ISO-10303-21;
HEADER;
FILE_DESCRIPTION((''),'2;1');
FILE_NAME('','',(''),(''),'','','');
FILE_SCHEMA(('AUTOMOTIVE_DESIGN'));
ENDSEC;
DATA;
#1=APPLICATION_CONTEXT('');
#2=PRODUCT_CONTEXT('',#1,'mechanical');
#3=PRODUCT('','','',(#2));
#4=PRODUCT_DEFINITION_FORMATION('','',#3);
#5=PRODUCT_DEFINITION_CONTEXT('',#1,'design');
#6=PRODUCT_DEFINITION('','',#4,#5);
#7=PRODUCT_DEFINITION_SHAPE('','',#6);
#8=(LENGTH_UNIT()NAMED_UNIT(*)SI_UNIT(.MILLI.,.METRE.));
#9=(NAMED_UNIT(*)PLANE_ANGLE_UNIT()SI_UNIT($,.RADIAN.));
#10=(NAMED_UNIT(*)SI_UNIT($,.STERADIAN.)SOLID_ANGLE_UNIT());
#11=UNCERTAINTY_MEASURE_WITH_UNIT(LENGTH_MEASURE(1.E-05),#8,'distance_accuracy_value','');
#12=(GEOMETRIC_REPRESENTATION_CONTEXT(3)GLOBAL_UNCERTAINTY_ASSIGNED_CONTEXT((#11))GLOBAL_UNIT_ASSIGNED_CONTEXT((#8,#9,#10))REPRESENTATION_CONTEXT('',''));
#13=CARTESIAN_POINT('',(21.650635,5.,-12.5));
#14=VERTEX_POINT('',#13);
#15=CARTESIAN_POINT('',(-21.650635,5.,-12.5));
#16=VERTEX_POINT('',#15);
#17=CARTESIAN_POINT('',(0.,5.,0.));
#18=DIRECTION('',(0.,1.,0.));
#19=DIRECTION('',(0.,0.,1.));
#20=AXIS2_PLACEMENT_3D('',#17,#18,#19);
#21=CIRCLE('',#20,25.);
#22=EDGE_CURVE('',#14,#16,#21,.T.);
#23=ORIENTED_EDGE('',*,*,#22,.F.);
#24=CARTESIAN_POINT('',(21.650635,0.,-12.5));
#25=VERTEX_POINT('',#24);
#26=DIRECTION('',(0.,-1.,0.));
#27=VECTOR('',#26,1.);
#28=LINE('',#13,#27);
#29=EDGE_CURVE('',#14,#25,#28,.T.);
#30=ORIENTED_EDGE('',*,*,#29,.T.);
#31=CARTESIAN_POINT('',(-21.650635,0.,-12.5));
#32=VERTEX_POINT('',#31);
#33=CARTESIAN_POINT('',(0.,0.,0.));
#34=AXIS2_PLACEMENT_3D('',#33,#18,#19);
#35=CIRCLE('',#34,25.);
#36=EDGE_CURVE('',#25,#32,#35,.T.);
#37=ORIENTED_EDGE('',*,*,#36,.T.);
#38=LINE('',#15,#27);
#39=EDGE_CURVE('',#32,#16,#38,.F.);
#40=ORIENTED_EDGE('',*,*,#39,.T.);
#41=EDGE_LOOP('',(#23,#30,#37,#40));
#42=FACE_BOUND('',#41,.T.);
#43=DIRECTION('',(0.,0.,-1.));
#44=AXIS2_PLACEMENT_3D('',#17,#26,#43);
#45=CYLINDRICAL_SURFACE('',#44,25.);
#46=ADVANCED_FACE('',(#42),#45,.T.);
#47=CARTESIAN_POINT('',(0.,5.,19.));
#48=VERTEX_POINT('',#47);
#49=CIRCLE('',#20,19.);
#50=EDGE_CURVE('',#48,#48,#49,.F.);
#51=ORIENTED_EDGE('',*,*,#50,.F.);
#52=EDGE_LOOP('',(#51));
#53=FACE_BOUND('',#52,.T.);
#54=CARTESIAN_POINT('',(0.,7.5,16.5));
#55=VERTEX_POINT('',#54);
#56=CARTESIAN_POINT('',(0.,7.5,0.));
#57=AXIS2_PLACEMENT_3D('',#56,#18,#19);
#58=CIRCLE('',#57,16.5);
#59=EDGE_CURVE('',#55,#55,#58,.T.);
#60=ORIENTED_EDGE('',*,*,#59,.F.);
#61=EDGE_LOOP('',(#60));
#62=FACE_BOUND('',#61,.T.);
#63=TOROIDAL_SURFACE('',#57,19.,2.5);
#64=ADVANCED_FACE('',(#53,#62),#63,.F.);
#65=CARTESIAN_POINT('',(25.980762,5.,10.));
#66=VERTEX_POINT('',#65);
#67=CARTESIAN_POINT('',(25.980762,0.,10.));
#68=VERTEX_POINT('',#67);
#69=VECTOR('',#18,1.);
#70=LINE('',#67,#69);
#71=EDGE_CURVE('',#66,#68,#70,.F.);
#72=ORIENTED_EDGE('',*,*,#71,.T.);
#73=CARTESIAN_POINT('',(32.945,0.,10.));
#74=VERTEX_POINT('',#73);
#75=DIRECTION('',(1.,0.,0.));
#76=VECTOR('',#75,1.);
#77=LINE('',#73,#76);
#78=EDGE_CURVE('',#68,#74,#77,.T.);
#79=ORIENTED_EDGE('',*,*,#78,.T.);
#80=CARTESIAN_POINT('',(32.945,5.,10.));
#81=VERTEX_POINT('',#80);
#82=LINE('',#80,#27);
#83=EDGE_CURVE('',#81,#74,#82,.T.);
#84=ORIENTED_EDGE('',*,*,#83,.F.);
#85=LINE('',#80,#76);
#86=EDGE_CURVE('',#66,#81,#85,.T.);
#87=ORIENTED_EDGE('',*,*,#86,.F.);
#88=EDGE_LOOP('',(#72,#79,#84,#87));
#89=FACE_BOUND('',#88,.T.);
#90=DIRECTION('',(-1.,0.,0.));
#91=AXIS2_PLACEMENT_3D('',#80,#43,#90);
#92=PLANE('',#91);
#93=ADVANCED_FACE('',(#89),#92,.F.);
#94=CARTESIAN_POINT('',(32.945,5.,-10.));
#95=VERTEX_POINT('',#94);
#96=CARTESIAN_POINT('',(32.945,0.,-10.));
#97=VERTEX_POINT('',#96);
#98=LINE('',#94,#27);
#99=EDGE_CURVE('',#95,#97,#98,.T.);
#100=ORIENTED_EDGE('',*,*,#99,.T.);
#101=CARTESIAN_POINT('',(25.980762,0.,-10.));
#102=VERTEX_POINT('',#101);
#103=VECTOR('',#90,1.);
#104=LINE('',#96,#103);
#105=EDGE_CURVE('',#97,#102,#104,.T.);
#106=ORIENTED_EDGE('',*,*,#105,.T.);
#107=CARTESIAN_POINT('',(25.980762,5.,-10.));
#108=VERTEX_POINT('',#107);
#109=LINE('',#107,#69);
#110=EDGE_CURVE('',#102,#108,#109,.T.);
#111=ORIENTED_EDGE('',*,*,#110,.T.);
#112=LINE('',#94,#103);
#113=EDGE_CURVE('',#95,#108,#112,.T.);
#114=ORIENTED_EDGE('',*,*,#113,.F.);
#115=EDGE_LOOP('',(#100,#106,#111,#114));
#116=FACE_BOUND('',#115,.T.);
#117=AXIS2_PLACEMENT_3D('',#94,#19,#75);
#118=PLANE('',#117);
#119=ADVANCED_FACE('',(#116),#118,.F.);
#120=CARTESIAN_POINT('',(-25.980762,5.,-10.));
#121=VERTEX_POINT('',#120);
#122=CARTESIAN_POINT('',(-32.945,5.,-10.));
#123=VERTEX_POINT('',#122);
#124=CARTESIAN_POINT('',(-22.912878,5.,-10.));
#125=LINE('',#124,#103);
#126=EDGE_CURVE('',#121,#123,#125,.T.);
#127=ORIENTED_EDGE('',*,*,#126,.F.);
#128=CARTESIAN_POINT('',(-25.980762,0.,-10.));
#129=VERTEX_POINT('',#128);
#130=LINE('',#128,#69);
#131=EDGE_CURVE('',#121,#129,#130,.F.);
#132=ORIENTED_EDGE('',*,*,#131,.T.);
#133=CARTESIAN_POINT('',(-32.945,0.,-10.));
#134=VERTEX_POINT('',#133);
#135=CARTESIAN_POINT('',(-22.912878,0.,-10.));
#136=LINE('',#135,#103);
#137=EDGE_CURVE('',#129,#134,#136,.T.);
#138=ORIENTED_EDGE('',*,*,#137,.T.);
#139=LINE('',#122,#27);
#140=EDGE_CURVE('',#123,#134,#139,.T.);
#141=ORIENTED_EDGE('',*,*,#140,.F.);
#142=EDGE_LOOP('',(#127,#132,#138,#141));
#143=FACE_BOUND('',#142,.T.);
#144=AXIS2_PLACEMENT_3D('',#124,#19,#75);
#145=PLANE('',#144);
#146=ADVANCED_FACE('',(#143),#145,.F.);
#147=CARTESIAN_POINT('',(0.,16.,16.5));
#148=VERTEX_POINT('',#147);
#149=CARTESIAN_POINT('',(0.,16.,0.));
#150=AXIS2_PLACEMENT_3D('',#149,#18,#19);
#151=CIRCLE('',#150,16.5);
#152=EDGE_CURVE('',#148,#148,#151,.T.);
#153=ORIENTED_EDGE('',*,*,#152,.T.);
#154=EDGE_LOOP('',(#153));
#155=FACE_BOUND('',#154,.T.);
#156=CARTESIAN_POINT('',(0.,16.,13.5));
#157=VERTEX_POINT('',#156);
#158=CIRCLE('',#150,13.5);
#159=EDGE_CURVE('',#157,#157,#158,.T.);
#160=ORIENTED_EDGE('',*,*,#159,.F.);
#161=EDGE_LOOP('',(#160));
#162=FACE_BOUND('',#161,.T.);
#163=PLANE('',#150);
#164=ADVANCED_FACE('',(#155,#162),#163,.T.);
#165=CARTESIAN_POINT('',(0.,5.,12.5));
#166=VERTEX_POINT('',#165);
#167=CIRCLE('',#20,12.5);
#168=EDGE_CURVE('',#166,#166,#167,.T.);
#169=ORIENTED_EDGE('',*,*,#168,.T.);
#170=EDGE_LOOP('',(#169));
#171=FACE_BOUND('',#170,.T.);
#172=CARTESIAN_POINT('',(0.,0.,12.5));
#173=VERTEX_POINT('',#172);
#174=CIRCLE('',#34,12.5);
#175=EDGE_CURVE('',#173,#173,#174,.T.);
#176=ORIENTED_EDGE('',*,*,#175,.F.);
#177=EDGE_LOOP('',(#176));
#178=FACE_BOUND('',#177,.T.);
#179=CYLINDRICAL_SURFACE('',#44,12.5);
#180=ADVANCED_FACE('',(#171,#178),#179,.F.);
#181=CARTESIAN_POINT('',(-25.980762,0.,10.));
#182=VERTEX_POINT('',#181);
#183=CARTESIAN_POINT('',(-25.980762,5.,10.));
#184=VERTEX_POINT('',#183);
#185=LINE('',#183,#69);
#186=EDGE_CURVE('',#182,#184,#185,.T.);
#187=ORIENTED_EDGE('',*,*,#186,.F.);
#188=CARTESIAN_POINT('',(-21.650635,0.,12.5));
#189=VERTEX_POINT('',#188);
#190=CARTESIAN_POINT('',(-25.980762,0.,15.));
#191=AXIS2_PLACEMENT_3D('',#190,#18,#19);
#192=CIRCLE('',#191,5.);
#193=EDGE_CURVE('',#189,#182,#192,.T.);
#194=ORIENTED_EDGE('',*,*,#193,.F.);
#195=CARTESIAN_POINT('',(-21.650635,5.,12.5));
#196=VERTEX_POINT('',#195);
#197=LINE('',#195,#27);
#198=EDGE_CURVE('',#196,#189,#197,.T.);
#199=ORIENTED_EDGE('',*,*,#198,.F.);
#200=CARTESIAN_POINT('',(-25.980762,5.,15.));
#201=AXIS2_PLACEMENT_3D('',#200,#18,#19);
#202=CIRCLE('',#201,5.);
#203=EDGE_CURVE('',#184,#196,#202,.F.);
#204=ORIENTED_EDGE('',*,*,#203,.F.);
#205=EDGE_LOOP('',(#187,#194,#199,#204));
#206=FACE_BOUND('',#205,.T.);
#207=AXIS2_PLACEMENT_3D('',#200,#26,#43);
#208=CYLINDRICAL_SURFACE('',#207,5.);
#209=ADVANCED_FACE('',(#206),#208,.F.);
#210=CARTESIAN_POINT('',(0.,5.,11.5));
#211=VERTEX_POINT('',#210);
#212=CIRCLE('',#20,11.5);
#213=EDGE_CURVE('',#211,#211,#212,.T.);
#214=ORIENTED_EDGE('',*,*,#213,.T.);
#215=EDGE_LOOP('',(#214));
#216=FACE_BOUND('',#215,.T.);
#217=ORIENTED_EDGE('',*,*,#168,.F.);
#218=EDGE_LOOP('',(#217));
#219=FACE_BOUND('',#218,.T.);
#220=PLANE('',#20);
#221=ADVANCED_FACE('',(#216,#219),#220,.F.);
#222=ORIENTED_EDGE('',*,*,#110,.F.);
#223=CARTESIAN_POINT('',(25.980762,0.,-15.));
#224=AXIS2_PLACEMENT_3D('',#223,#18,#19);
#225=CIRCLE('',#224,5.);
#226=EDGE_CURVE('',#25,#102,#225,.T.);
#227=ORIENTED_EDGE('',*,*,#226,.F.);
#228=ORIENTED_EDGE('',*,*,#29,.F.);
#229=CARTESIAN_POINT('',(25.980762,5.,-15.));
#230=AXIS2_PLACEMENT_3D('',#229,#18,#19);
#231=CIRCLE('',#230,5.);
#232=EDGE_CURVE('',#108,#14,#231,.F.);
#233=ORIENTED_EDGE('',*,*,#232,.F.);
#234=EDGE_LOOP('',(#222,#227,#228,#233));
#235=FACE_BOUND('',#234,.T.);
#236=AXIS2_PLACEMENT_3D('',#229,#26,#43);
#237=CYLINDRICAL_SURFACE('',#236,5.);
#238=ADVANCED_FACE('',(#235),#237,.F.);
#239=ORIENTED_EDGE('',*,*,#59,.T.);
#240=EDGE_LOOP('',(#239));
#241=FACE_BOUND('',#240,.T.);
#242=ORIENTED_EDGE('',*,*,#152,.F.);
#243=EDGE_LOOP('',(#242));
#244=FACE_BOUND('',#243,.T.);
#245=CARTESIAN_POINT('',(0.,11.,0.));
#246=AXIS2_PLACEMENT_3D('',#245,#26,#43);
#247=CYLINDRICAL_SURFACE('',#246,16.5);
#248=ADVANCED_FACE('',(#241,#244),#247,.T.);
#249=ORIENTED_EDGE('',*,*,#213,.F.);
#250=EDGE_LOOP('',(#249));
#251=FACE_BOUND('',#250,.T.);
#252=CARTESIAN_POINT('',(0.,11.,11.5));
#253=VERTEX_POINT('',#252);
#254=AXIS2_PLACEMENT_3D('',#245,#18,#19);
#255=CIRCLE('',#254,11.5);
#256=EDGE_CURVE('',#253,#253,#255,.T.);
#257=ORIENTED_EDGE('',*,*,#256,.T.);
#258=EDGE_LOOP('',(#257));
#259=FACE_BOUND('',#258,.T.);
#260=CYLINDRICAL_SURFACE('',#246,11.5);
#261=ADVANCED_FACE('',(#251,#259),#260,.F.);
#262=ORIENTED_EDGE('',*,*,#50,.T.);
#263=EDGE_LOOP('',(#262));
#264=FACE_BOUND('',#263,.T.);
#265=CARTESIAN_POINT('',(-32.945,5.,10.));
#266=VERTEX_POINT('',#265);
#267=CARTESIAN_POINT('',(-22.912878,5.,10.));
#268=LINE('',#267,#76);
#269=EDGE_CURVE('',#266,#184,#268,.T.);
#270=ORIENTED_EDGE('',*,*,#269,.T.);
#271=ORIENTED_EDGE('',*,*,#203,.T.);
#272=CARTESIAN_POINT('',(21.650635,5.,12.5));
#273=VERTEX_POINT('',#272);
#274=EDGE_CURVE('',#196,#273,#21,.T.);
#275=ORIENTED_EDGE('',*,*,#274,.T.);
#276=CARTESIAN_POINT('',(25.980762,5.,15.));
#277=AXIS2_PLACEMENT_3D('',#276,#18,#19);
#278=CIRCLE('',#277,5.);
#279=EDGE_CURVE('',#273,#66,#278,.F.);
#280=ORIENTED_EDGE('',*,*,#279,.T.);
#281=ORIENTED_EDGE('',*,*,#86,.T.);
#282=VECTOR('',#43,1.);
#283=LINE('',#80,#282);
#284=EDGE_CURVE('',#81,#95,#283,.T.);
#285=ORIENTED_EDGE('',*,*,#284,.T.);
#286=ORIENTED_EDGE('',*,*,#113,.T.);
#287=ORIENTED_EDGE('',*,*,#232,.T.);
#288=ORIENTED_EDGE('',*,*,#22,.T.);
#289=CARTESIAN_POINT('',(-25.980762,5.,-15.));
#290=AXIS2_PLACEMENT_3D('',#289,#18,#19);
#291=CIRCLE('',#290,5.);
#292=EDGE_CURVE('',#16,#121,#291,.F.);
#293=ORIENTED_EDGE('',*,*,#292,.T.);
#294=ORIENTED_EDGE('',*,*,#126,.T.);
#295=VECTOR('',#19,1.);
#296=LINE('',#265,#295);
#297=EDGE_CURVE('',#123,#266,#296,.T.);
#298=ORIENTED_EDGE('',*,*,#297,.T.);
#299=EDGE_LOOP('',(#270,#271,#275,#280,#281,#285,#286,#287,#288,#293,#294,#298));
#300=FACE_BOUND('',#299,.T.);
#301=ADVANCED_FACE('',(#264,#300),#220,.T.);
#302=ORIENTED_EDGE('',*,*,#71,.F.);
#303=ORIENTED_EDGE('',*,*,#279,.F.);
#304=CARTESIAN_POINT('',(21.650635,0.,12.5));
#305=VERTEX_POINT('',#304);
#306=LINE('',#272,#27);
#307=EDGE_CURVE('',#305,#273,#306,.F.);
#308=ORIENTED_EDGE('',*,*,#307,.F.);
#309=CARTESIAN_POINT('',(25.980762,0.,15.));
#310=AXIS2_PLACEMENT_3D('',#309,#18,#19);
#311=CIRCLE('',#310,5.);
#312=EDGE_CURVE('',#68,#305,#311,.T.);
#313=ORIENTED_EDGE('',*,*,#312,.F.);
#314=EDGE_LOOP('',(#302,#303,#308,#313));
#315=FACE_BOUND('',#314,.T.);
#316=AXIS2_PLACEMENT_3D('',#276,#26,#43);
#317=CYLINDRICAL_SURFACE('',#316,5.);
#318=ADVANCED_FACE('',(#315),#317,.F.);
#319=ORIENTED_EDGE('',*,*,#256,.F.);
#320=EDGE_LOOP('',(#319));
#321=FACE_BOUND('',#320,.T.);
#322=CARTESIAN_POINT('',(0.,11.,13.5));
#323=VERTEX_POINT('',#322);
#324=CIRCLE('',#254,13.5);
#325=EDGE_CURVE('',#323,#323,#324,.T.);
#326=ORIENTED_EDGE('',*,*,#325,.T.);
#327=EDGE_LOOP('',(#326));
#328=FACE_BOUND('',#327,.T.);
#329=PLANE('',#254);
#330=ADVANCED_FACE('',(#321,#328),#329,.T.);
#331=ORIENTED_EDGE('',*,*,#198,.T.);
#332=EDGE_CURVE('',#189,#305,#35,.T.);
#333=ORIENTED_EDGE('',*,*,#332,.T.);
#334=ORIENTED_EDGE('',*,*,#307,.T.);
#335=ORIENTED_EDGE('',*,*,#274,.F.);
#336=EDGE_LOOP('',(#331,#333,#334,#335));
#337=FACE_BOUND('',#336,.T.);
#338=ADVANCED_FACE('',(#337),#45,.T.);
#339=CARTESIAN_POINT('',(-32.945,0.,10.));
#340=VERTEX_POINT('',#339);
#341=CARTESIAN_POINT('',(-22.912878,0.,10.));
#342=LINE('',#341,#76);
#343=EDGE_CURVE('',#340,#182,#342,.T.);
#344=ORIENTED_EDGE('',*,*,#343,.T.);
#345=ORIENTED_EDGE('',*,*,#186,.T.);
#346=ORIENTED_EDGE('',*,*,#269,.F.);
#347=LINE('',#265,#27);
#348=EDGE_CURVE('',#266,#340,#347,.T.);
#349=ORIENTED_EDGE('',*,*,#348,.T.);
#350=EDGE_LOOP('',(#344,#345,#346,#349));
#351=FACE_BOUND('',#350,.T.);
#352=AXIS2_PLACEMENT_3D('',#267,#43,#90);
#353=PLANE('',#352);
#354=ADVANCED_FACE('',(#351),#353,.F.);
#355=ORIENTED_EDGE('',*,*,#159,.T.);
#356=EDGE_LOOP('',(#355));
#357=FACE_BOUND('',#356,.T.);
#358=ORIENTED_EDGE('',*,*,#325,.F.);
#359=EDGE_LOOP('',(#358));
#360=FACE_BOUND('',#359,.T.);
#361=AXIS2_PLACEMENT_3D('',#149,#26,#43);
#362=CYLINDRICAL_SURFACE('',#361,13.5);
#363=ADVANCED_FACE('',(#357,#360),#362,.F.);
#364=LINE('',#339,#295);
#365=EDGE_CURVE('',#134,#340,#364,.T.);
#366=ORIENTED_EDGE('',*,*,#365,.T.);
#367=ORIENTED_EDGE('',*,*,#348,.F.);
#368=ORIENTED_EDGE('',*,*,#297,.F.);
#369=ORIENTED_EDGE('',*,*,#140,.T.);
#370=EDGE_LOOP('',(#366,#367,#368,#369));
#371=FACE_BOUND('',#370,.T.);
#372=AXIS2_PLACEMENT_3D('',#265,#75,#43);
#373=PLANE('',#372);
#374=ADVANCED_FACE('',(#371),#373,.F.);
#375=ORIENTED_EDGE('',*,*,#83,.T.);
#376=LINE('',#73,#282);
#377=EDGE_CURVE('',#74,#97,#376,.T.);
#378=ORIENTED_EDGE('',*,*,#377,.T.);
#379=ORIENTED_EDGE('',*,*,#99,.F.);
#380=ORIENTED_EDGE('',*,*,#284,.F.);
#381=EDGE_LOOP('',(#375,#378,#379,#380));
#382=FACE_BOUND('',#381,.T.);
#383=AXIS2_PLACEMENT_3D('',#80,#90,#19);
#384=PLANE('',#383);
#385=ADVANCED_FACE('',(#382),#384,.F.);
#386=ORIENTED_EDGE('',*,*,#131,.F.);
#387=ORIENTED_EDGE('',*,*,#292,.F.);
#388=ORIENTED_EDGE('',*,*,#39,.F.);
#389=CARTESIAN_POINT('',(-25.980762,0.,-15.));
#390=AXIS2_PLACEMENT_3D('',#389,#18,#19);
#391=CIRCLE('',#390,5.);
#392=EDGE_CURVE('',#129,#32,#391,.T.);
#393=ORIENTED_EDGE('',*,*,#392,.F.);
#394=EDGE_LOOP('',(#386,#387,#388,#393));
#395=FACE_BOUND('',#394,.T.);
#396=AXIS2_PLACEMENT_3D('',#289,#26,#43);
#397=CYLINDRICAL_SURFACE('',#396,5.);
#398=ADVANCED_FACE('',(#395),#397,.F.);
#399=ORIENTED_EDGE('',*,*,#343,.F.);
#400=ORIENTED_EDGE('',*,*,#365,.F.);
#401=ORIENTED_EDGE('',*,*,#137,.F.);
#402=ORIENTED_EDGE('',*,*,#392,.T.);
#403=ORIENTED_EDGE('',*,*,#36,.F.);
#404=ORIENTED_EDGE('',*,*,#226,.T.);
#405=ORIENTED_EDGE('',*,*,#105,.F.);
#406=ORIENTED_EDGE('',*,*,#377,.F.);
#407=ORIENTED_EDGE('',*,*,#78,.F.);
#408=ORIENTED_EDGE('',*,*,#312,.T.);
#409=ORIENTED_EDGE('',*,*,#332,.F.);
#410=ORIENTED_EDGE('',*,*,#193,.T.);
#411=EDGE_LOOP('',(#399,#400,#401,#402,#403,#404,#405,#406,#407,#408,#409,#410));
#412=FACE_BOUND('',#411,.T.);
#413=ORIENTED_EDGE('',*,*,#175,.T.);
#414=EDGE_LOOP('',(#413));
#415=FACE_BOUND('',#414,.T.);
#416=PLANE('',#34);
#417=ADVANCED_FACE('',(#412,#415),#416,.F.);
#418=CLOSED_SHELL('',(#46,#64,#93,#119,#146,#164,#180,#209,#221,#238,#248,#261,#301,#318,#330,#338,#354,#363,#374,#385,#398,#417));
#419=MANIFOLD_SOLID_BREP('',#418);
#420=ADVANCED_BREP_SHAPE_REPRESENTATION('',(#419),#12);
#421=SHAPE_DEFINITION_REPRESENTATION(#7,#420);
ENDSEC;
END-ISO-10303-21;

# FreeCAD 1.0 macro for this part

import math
import FreeCAD as App
import Part
import Sketcher
from FreeCAD import Vector
Q = App.Units.Quantity


def edges_at(feature, points):
    """Names of the edges that pass closest to the given points."""
    edges = feature.Shape.Edges
    near = lambda p: min(range(len(edges)), key=lambda i: edges[i].distToShape(Part.Vertex(*p))[0])
    return sorted({f"Edge{near(p) + 1}" for p in points})

doc = App.newDocument("Part")
params = doc.addObject("Spreadsheet::Sheet", "Params")
for row, (alias, value) in enumerate([
    ("sketch1_diameter", "25 mm"),
    ("sketch1_radius", "25 mm"),
    ("sketch1_height", "20 mm"),
    ("pad1_length", "5 mm"),
    ("sketch2_diameter", "33 mm"),
    ("sketch2_diameter2", "23 mm"),
    ("pad2_length", "6 mm"),
    ("sketch3_diameter", "33 mm"),
    ("sketch3_diameter2", "27 mm"),
    ("pad3_length", "5 mm"),
    ("fillet_radius", "2.5 mm"),
    ("fillet2_radius", "5 mm"),
], start=1):
    params.set(f"A{row}", alias)
    params.set(f"B{row}", "=" + value)
    params.setAlias(f"B{row}", alias)

body = doc.addObject("PartDesign::Body", "Body")

sketch1 = doc.addObject("Sketcher::SketchObject", "Sketch")
body.addObject(sketch1)
sketch1.AttachmentSupport = (doc.XZ_Plane, [""])
sketch1.MapMode = "FlatFace"
sketch1.addGeometry([
    Part.LineSegment(Vector(-23, -10, 0), Vector(-33, -10, 0)),
    Part.LineSegment(Vector(-33, -10, 0), Vector(-33, 10, 0)),
    Part.LineSegment(Vector(-33, 10, 0), Vector(-23, 10, 0)),
    Part.ArcOfCircle(Part.Circle(Vector(0, 0, 0), Vector(0, 0, 1), 25), math.radians(24), math.radians(156)),
    Part.LineSegment(Vector(23, 10, 0), Vector(33, 10, 0)),
    Part.LineSegment(Vector(33, 10, 0), Vector(33, -10, 0)),
    Part.LineSegment(Vector(33, -10, 0), Vector(23, -10, 0)),
    Part.ArcOfCircle(Part.Circle(Vector(0, 0, 0), Vector(0, 0, 1), 25), math.radians(-156), math.radians(-24)),
    Part.Circle(Vector(0, 0, 0), Vector(0, 0, 1), 12),
], False)
sketch1.addConstraint([
    Sketcher.Constraint("Coincident", 0, 2, 1, 1),
    Sketcher.Constraint("Coincident", 1, 2, 2, 1),
    Sketcher.Constraint("Coincident", 2, 2, 3, 2),
    Sketcher.Constraint("Coincident", 3, 1, 4, 1),
    Sketcher.Constraint("Coincident", 4, 2, 5, 1),
    Sketcher.Constraint("Coincident", 5, 2, 6, 1),
    Sketcher.Constraint("Coincident", 6, 2, 7, 2),
    Sketcher.Constraint("Coincident", 7, 1, 0, 1),
    Sketcher.Constraint("Horizontal", 0),
    Sketcher.Constraint("Vertical", 1),
    Sketcher.Constraint("Horizontal", 2),
    Sketcher.Constraint("Horizontal", 4),
    Sketcher.Constraint("Vertical", 5),
    Sketcher.Constraint("Horizontal", 6),
    Sketcher.Constraint("Coincident", 3, 3, -1, 1),
    Sketcher.Constraint("Coincident", 7, 3, -1, 1),
    Sketcher.Constraint("Coincident", 8, 3, -1, 1),
    Sketcher.Constraint("Equal", 3, 7),
    Sketcher.Constraint("Symmetric", 0, 2, 4, 2, -1, 1),
    Sketcher.Constraint("Horizontal", 2, 2, 3, 1),
    Sketcher.Constraint("Horizontal", 0, 2, 5, 2),
    Sketcher.Constraint("Diameter", 8, Q("25 mm")),
    Sketcher.Constraint("Radius", 3, Q("25 mm")),
    Sketcher.Constraint("DistanceY", 1, 1, 1, 2, Q("20 mm")),
    Sketcher.Constraint("DistanceX", 0, 2, -1, 1, Q("32.945 mm")),
])
sketch1.setExpression("Constraints[21]", "Params.sketch1_diameter")
sketch1.setExpression("Constraints[22]", "Params.sketch1_radius")
sketch1.setExpression("Constraints[23]", "Params.sketch1_height")
pad1 = doc.addObject("PartDesign::Pad", "Pad")
body.addObject(pad1)
pad1.Profile = sketch1
pad1.setExpression("Length", "Params.pad1_length")
pad1.Reversed = True

sketch2 = doc.addObject("Sketcher::SketchObject", "Sketch001")
body.addObject(sketch2)
sketch2.AttachmentSupport = (doc.XZ_Plane, [""])
sketch2.MapMode = "FlatFace"
sketch2.AttachmentOffset = App.Placement(Vector(0, 0, -5), App.Rotation())
sketch2.addGeometry([
    Part.Circle(Vector(0, 0, 0), Vector(0, 0, 1), 16),
    Part.Circle(Vector(0, 0, 0), Vector(0, 0, 1), 12),
], False)
sketch2.addConstraint([
    Sketcher.Constraint("Coincident", 0, 3, -1, 1),
    Sketcher.Constraint("Coincident", 1, 3, -1, 1),
    Sketcher.Constraint("Diameter", 0, Q("33 mm")),
    Sketcher.Constraint("Diameter", 1, Q("23 mm")),
])
sketch2.setExpression("Constraints[2]", "Params.sketch2_diameter")
sketch2.setExpression("Constraints[3]", "Params.sketch2_diameter2")
pad2 = doc.addObject("PartDesign::Pad", "Pad001")
body.addObject(pad2)
pad2.Profile = sketch2
pad2.setExpression("Length", "Params.pad2_length")
pad2.Reversed = True

sketch3 = doc.addObject("Sketcher::SketchObject", "Sketch002")
body.addObject(sketch3)
sketch3.AttachmentSupport = (doc.XZ_Plane, [""])
sketch3.MapMode = "FlatFace"
sketch3.AttachmentOffset = App.Placement(Vector(0, 0, -11), App.Rotation())
sketch3.addGeometry([
    Part.Circle(Vector(0, 0, 0), Vector(0, 0, 1), 16),
    Part.Circle(Vector(0, 0, 0), Vector(0, 0, 1), 14),
], False)
sketch3.addConstraint([
    Sketcher.Constraint("Coincident", 0, 3, -1, 1),
    Sketcher.Constraint("Coincident", 1, 3, -1, 1),
    Sketcher.Constraint("Diameter", 0, Q("33 mm")),
    Sketcher.Constraint("Diameter", 1, Q("27 mm")),
])
sketch3.setExpression("Constraints[2]", "Params.sketch3_diameter")
sketch3.setExpression("Constraints[3]", "Params.sketch3_diameter2")
pad3 = doc.addObject("PartDesign::Pad", "Pad002")
body.addObject(pad3)
pad3.Profile = sketch3
pad3.setExpression("Length", "Params.pad3_length")
pad3.Reversed = True
doc.recompute()

fillet = doc.addObject("PartDesign::Fillet", "Fillet")
body.addObject(fillet)
fillet.Base = (pad3, edges_at(pad3, [(0, 5, -16.5)]))
fillet.setExpression("Radius", "Params.fillet_radius")
doc.recompute()

fillet2 = doc.addObject("PartDesign::Fillet", "Fillet001")
body.addObject(fillet2)
fillet2.Base = (fillet, edges_at(fillet, [
    (-22.913, 2.5, -10),
    (22.913, 2.5, -10),
    (22.913, 2.5, 10),
    (-22.913, 2.5, 10),
]))
fillet2.setExpression("Radius", "Params.fillet2_radius")

doc.recompute()
